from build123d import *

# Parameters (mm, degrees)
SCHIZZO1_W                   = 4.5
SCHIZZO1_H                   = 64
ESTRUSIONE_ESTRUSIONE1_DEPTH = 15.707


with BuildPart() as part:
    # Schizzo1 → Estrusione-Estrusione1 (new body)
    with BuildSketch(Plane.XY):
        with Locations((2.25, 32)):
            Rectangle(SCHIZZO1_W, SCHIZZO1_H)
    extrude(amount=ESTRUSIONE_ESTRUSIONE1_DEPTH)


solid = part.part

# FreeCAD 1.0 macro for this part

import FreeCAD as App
import Part
import Sketcher
from FreeCAD import Vector

doc = App.newDocument("Part")
params = doc.addObject("Spreadsheet::Sheet", "Params")
for row, (alias, value) in enumerate([
    ("sketch1_height", "64 mm"),
    ("sketch1_width", "4.5 mm"),
    ("pad1_length", "15.707 mm"),
], start=1):
    params.set(f"A{row}", alias)
    params.set(f"B{row}", "=" + value)
    params.setAlias(f"B{row}", alias)

body = doc.addObject("PartDesign::Body", "Body")

sketch1 = body.newObject("Sketcher::SketchObject", "Sketch")
sketch1.AttachmentSupport = (doc.getObject("XY_Plane"), [""])
sketch1.MapMode = "FlatFace"
sketch1.addGeometry([
    Part.LineSegment(Vector(0, 64, 0), Vector(0, 0, 0)),
    Part.LineSegment(Vector(0, 0, 0), Vector(4.5, 0, 0)),
    Part.LineSegment(Vector(4.5, 0, 0), Vector(4.5, 64, 0)),
    Part.LineSegment(Vector(4.5, 64, 0), Vector(0, 64, 0)),
], False)
sketch1.addConstraint([
    Sketcher.Constraint("Coincident", 0, 2, 1, 1),
    Sketcher.Constraint("Coincident", 1, 2, 2, 1),
    Sketcher.Constraint("Coincident", 2, 2, 3, 1),
    Sketcher.Constraint("Coincident", 3, 2, 0, 1),
    Sketcher.Constraint("Vertical", 0),
    Sketcher.Constraint("Horizontal", 1),
    Sketcher.Constraint("Vertical", 2),
    Sketcher.Constraint("Horizontal", 3),
    Sketcher.Constraint("Coincident", 0, 2, -1, 1),
    Sketcher.Constraint("DistanceY", 0, 2, 0, 1, 64.0),
    Sketcher.Constraint("DistanceX", 1, 1, 1, 2, 4.5),
])
sketch1.setExpression("Constraints[9]", "Params.sketch1_height")
sketch1.setExpression("Constraints[10]", "Params.sketch1_width")
pad1 = body.newObject("PartDesign::Pad", "Pad")
pad1.Profile = sketch1
pad1.setExpression("Length", "Params.pad1_length")

doc.recompute()
